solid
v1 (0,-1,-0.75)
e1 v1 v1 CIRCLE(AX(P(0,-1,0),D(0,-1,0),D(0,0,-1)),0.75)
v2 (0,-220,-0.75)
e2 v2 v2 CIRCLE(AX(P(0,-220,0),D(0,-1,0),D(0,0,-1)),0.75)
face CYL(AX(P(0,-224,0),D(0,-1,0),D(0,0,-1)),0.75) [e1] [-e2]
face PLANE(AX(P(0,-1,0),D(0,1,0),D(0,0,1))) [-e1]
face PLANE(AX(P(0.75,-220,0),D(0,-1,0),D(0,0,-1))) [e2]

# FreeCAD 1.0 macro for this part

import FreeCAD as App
import Part
import Sketcher

V = App.Vector
Q = App.Units.Quantity


def add_polygon(sketch, points):
    """Adds a closed chain of lines whose ends are joined by coincident constraints."""
    first, n = sketch.GeometryCount, len(points)
    for a, b in zip(points, points[1:] + points[:1]):
        sketch.addGeometry(Part.LineSegment(App.Vector(*a, 0), App.Vector(*b, 0)), False)
    for i in range(n):
        sketch.addConstraint(Sketcher.Constraint("Coincident", first + i, 2, first + (i + 1) % n, 1))

doc = App.newDocument("Part")
body = doc.addObject("PartDesign::Body", "Body")

# Sketch on XY plane
sketch1 = body.newObject("Sketcher::SketchObject", "Sketch")
sketch1.AttachmentSupport = (doc.getObject("XY_Plane"), [""])
sketch1.MapMode = "FlatFace"
add_polygon(sketch1, [(0, -1), (0, -220), (0.75, -220), (0.75, -1)])  # lines 0-3
sketch1.addConstraint([
    Sketcher.Constraint("Vertical", 0),
    Sketcher.Constraint("Horizontal", 1),
    Sketcher.Constraint("Vertical", 2),
    Sketcher.Constraint("Horizontal", 3),
    Sketcher.Constraint("PointOnObject", 0, 2, -2),
    Sketcher.Constraint("DistanceY", 0, 2, 0, 1, Q("219 mm")),
    Sketcher.Constraint("DistanceY", 0, 2, -1, 1, Q("220 mm")),
    Sketcher.Constraint("DistanceX", 1, 1, 1, 2, Q("0.75 mm")),
])
revolution = body.newObject("PartDesign::Revolution", "Revolution")
revolution.Profile = sketch1
revolution.ReferenceAxis = (sketch1, ["V_Axis"])
revolution.Angle = 360

doc.recompute()
